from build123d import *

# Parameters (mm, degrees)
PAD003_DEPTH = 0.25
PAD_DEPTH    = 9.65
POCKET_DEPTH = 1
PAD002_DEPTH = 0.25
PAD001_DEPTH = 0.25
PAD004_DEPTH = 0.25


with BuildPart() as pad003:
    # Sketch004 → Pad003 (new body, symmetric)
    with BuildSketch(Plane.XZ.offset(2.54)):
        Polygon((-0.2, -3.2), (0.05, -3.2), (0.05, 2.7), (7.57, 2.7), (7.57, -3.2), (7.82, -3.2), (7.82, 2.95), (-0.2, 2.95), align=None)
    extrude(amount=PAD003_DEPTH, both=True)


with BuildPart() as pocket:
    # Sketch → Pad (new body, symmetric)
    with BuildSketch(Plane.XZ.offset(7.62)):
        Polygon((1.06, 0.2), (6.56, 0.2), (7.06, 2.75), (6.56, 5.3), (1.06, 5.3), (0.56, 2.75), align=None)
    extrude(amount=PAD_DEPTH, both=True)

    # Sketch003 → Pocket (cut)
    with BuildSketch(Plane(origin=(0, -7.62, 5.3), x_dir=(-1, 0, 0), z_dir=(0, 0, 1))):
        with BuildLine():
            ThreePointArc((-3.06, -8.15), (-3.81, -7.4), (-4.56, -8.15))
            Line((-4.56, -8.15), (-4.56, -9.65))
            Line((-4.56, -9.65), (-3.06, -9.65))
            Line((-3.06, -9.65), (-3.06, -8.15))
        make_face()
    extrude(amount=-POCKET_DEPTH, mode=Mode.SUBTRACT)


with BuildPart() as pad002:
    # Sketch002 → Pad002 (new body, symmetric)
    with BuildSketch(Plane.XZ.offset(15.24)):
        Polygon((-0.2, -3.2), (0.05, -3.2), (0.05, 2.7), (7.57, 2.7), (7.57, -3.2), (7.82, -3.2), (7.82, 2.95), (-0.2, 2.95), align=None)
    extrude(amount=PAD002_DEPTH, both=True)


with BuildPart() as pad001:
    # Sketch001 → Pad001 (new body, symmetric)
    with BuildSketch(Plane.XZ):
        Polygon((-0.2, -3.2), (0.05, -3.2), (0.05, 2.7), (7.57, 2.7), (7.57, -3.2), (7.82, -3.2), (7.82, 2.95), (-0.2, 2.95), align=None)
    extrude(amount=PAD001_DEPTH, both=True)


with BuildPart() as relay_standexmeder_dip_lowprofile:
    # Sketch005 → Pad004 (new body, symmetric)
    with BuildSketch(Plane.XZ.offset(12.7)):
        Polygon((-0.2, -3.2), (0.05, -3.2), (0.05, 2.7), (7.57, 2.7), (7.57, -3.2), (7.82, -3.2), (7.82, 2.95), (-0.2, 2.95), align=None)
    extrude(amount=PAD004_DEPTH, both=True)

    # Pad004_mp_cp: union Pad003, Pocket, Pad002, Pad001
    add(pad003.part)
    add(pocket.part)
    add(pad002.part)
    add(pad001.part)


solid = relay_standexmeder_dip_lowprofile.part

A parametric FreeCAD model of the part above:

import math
import FreeCAD as App
import Part
import Sketcher

doc = App.newDocument("Part")
body = doc.addObject("PartDesign::Body", "Body")

sketch1 = body.newObject("Sketcher::SketchObject", "Sketch")
sketch1.AttachmentSupport = (doc.getObject("XZ_Plane"), [""])
sketch1.MapMode = "FlatFace"
sketch1.AttachmentOffset = App.Placement(App.Vector(0, 0, 2.54), App.Rotation())
sketch1.addGeometry([
    Part.LineSegment(App.Vector(-0.2, -3.2, 0), App.Vector(0.05, -3.2, 0)),
    Part.LineSegment(App.Vector(0.05, -3.2, 0), App.Vector(0.05, 2.7, 0)),
    Part.LineSegment(App.Vector(0.05, 2.7, 0), App.Vector(7.57, 2.7, 0)),
    Part.LineSegment(App.Vector(7.57, 2.7, 0), App.Vector(7.57, -3.2, 0)),
    Part.LineSegment(App.Vector(7.57, -3.2, 0), App.Vector(7.82, -3.2, 0)),
    Part.LineSegment(App.Vector(7.82, -3.2, 0), App.Vector(7.82, 2.95, 0)),
    Part.LineSegment(App.Vector(7.82, 2.95, 0), App.Vector(-0.2, 2.95, 0)),
    Part.LineSegment(App.Vector(-0.2, 2.95, 0), App.Vector(-0.2, -3.2, 0)),
], False)
sketch1.addConstraint([
    Sketcher.Constraint("Coincident", 0, 2, 1, 1),
    Sketcher.Constraint("Coincident", 1, 2, 2, 1),
    Sketcher.Constraint("Coincident", 2, 2, 3, 1),
    Sketcher.Constraint("Coincident", 3, 2, 4, 1),
    Sketcher.Constraint("Coincident", 4, 2, 5, 1),
    Sketcher.Constraint("Coincident", 5, 2, 6, 1),
    Sketcher.Constraint("Coincident", 6, 2, 7, 1),
    Sketcher.Constraint("Coincident", 7, 2, 0, 1),
    Sketcher.Constraint("Horizontal", 0),
    Sketcher.Constraint("Vertical", 1),
    Sketcher.Constraint("Horizontal", 2),
    Sketcher.Constraint("Vertical", 3),
    Sketcher.Constraint("Horizontal", 4),
    Sketcher.Constraint("Vertical", 5),
    Sketcher.Constraint("Horizontal", 6),
    Sketcher.Constraint("Vertical", 7),
    Sketcher.Constraint("Horizontal", 0, 2, 3, 2),
    Sketcher.Constraint("Equal", 0, 4),
    Sketcher.Constraint("DistanceY", 1, 1, 1, 2, 5.9),
    Sketcher.Constraint("DistanceX", 0, 1, 0, 2, 0.25),
    Sketcher.Constraint("DistanceX", 2, 1, 2, 2, 7.52),
    Sketcher.Constraint("DistanceY", 5, 1, 5, 2, 6.15),
    Sketcher.Constraint("DistanceY", 0, 2, -1, 1, 3.2),
    Sketcher.Constraint("DistanceX", 6, 2, -1, 1, 0.2),
])
pad1 = body.newObject("PartDesign::Pad", "Pad")
pad1.Profile = sketch1
pad1.Length = 0.5
pad1.Midplane = True
body2 = doc.addObject("PartDesign::Body", "Body001")

sketch2 = body2.newObject("Sketcher::SketchObject", "Sketch001")
sketch2.AttachmentSupport = (doc.getObject("XZ_Plane001"), [""])
sketch2.MapMode = "FlatFace"
sketch2.AttachmentOffset = App.Placement(App.Vector(0, 0, 7.62), App.Rotation())
sketch2.addGeometry([
    Part.LineSegment(App.Vector(1.06, 0.2, 0), App.Vector(6.56, 0.2, 0)),
    Part.LineSegment(App.Vector(6.56, 0.2, 0), App.Vector(7.06, 2.75, 0)),
    Part.LineSegment(App.Vector(7.06, 2.75, 0), App.Vector(6.56, 5.3, 0)),
    Part.LineSegment(App.Vector(6.56, 5.3, 0), App.Vector(1.06, 5.3, 0)),
    Part.LineSegment(App.Vector(1.06, 5.3, 0), App.Vector(0.56, 2.75, 0)),
    Part.LineSegment(App.Vector(0.56, 2.75, 0), App.Vector(1.06, 0.2, 0)),
], False)
sketch2.addConstraint([
    Sketcher.Constraint("Coincident", 0, 2, 1, 1),
    Sketcher.Constraint("Coincident", 1, 2, 2, 1),
    Sketcher.Constraint("Coincident", 2, 2, 3, 1),
    Sketcher.Constraint("Coincident", 3, 2, 4, 1),
    Sketcher.Constraint("Coincident", 4, 2, 5, 1),
    Sketcher.Constraint("Coincident", 5, 2, 0, 1),
    Sketcher.Constraint("Horizontal", 0),
    Sketcher.Constraint("Horizontal", 3),
    Sketcher.Constraint("Parallel", 1, 4),
    Sketcher.Constraint("Parallel", 2, 5),
    Sketcher.Constraint("Horizontal", 1, 2, 4, 2),
    Sketcher.Constraint("Vertical", 0, 2, 2, 2),
    Sketcher.Constraint("Vertical", 3, 2, 5, 2),
    Sketcher.Constraint("DistanceX", 0, 1, 0, 2, 5.5),
    Sketcher.Constraint("DistanceX", 3, 2, 1, 2, 6.0),
    Sketcher.Constraint("DistanceY", -1, 1, 0, 2, 0.2),
    Sketcher.Constraint("DistanceY", -1, 1, 2, 2, 5.3),
    Sketcher.Constraint("DistanceX", -1, 1, 0, 2, 6.56),
])
pad2 = body2.newObject("PartDesign::Pad", "Pad001")
pad2.Profile = sketch2
pad2.Length = 19.3
pad2.Midplane = True

sketch3 = body2.newObject("Sketcher::SketchObject", "Sketch002")
sketch3.AttachmentSupport = (doc.getObject("XY_Plane001"), [""])
sketch3.MapMode = "FlatFace"
sketch3.AttachmentOffset = App.Placement(App.Vector(0, 0, 5.3), App.Rotation())
sketch3.addGeometry([
    Part.ArcOfCircle(Part.Circle(App.Vector(3.81, 0.53, 0), App.Vector(0, 0, 1), 0.75), math.radians(180), math.radians(360)),
    Part.LineSegment(App.Vector(4.56, 0.53, 0), App.Vector(4.56, 2.03, 0)),
    Part.LineSegment(App.Vector(4.56, 2.03, 0), App.Vector(3.06, 2.03, 0)),
    Part.LineSegment(App.Vector(3.06, 2.03, 0), App.Vector(3.06, 0.53, 0)),
], False)
sketch3.addConstraint([
    Sketcher.Constraint("Tangent", 0, 2, 1, 1),
    Sketcher.Constraint("Coincident", 1, 2, 2, 1),
    Sketcher.Constraint("Coincident", 2, 2, 3, 1),
    Sketcher.Constraint("Tangent", 3, 2, 0, 1),
    Sketcher.Constraint("Vertical", 1),
    Sketcher.Constraint("Horizontal", 2),
    Sketcher.Constraint("Vertical", 3),
    Sketcher.Constraint("Equal", 2, 1),
    Sketcher.Constraint("Radius", 0, 0.75),
    Sketcher.Constraint("DistanceX", -1, 1, 0, 3, 3.81),
    Sketcher.Constraint("DistanceY", -1, 1, 0, 3, 0.53),
])
pocket1 = body2.newObject("PartDesign::Pocket", "Pocket")
pocket1.Profile = sketch3
pocket1.Length = 1
body3 = doc.addObject("PartDesign::Body", "Body002")

sketch4 = body3.newObject("Sketcher::SketchObject", "Sketch003")
sketch4.AttachmentSupport = (doc.getObject("XZ_Plane002"), [""])
sketch4.MapMode = "FlatFace"
sketch4.AttachmentOffset = App.Placement(App.Vector(0, 0, 15.24), App.Rotation())
sketch4.addGeometry([
    Part.LineSegment(App.Vector(-0.2, -3.2, 0), App.Vector(0.05, -3.2, 0)),
    Part.LineSegment(App.Vector(0.05, -3.2, 0), App.Vector(0.05, 2.7, 0)),
    Part.LineSegment(App.Vector(0.05, 2.7, 0), App.Vector(7.57, 2.7, 0)),
    Part.LineSegment(App.Vector(7.57, 2.7, 0), App.Vector(7.57, -3.2, 0)),
    Part.LineSegment(App.Vector(7.57, -3.2, 0), App.Vector(7.82, -3.2, 0)),
    Part.LineSegment(App.Vector(7.82, -3.2, 0), App.Vector(7.82, 2.95, 0)),
    Part.LineSegment(App.Vector(7.82, 2.95, 0), App.Vector(-0.2, 2.95, 0)),
    Part.LineSegment(App.Vector(-0.2, 2.95, 0), App.Vector(-0.2, -3.2, 0)),
], False)
sketch4.addConstraint([
    Sketcher.Constraint("Coincident", 0, 2, 1, 1),
    Sketcher.Constraint("Coincident", 1, 2, 2, 1),
    Sketcher.Constraint("Coincident", 2, 2, 3, 1),
    Sketcher.Constraint("Coincident", 3, 2, 4, 1),
    Sketcher.Constraint("Coincident", 4, 2, 5, 1),
    Sketcher.Constraint("Coincident", 5, 2, 6, 1),
    Sketcher.Constraint("Coincident", 6, 2, 7, 1),
    Sketcher.Constraint("Coincident", 7, 2, 0, 1),
    Sketcher.Constraint("Horizontal", 0),
    Sketcher.Constraint("Vertical", 1),
    Sketcher.Constraint("Horizontal", 2),
    Sketcher.Constraint("Vertical", 3),
    Sketcher.Constraint("Horizontal", 4),
    Sketcher.Constraint("Vertical", 5),
    Sketcher.Constraint("Horizontal", 6),
    Sketcher.Constraint("Vertical", 7),
    Sketcher.Constraint("Horizontal", 0, 2, 3, 2),
    Sketcher.Constraint("Equal", 0, 4),
    Sketcher.Constraint("DistanceY", 1, 1, 1, 2, 5.9),
    Sketcher.Constraint("DistanceX", 0, 1, 0, 2, 0.25),
    Sketcher.Constraint("DistanceX", 2, 1, 2, 2, 7.52),
    Sketcher.Constraint("DistanceY", 5, 1, 5, 2, 6.15),
    Sketcher.Constraint("DistanceY", 0, 2, -1, 1, 3.2),
    Sketcher.Constraint("DistanceX", 6, 2, -1, 1, 0.2),
])
pad3 = body3.newObject("PartDesign::Pad", "Pad002")
pad3.Profile = sketch4
pad3.Length = 0.5
pad3.Midplane = True
body4 = doc.addObject("PartDesign::Body", "Body003")

sketch5 = body4.newObject("Sketcher::SketchObject", "Sketch004")
sketch5.AttachmentSupport = (doc.getObject("XZ_Plane003"), [""])
sketch5.MapMode = "FlatFace"
sketch5.addGeometry([
    Part.LineSegment(App.Vector(-0.2, -3.2, 0), App.Vector(0.05, -3.2, 0)),
    Part.LineSegment(App.Vector(0.05, -3.2, 0), App.Vector(0.05, 2.7, 0)),
    Part.LineSegment(App.Vector(0.05, 2.7, 0), App.Vector(7.57, 2.7, 0)),
    Part.LineSegment(App.Vector(7.57, 2.7, 0), App.Vector(7.57, -3.2, 0)),
    Part.LineSegment(App.Vector(7.57, -3.2, 0), App.Vector(7.82, -3.2, 0)),
    Part.LineSegment(App.Vector(7.82, -3.2, 0), App.Vector(7.82, 2.95, 0)),
    Part.LineSegment(App.Vector(7.82, 2.95, 0), App.Vector(-0.2, 2.95, 0)),
    Part.LineSegment(App.Vector(-0.2, 2.95, 0), App.Vector(-0.2, -3.2, 0)),
], False)
sketch5.addConstraint([
    Sketcher.Constraint("Coincident", 0, 2, 1, 1),
    Sketcher.Constraint("Coincident", 1, 2, 2, 1),
    Sketcher.Constraint("Coincident", 2, 2, 3, 1),
    Sketcher.Constraint("Coincident", 3, 2, 4, 1),
    Sketcher.Constraint("Coincident", 4, 2, 5, 1),
    Sketcher.Constraint("Coincident", 5, 2, 6, 1),
    Sketcher.Constraint("Coincident", 6, 2, 7, 1),
    Sketcher.Constraint("Coincident", 7, 2, 0, 1),
    Sketcher.Constraint("Horizontal", 0),
    Sketcher.Constraint("Vertical", 1),
    Sketcher.Constraint("Horizontal", 2),
    Sketcher.Constraint("Vertical", 3),
    Sketcher.Constraint("Horizontal", 4),
    Sketcher.Constraint("Vertical", 5),
    Sketcher.Constraint("Horizontal", 6),
    Sketcher.Constraint("Vertical", 7),
    Sketcher.Constraint("Horizontal", 0, 2, 3, 2),
    Sketcher.Constraint("Equal", 0, 4),
    Sketcher.Constraint("DistanceY", 1, 1, 1, 2, 5.9),
    Sketcher.Constraint("DistanceX", 0, 1, 0, 2, 0.25),
    Sketcher.Constraint("DistanceX", 2, 1, 2, 2, 7.52),
    Sketcher.Constraint("DistanceY", 5, 1, 5, 2, 6.15),
    Sketcher.Constraint("DistanceY", 0, 2, -1, 1, 3.2),
    Sketcher.Constraint("DistanceX", 6, 2, -1, 1, 0.2),
])
pad4 = body4.newObject("PartDesign::Pad", "Pad003")
pad4.Profile = sketch5
pad4.Length = 0.5
pad4.Midplane = True
body5 = doc.addObject("PartDesign::Body", "Body004")
body5.AllowCompound = True

sketch6 = body5.newObject("Sketcher::SketchObject", "Sketch005")
sketch6.AttachmentSupport = (doc.getObject("XZ_Plane004"), [""])
sketch6.MapMode = "FlatFace"
sketch6.AttachmentOffset = App.Placement(App.Vector(0, 0, 12.7), App.Rotation())
sketch6.addGeometry([
    Part.LineSegment(App.Vector(-0.2, -3.2, 0), App.Vector(0.05, -3.2, 0)),
    Part.LineSegment(App.Vector(0.05, -3.2, 0), App.Vector(0.05, 2.7, 0)),
    Part.LineSegment(App.Vector(0.05, 2.7, 0), App.Vector(7.57, 2.7, 0)),
    Part.LineSegment(App.Vector(7.57, 2.7, 0), App.Vector(7.57, -3.2, 0)),
    Part.LineSegment(App.Vector(7.57, -3.2, 0), App.Vector(7.82, -3.2, 0)),
    Part.LineSegment(App.Vector(7.82, -3.2, 0), App.Vector(7.82, 2.95, 0)),
    Part.LineSegment(App.Vector(7.82, 2.95, 0), App.Vector(-0.2, 2.95, 0)),
    Part.LineSegment(App.Vector(-0.2, 2.95, 0), App.Vector(-0.2, -3.2, 0)),
], False)
sketch6.addConstraint([
    Sketcher.Constraint("Coincident", 0, 2, 1, 1),
    Sketcher.Constraint("Coincident", 1, 2, 2, 1),
    Sketcher.Constraint("Coincident", 2, 2, 3, 1),
    Sketcher.Constraint("Coincident", 3, 2, 4, 1),
    Sketcher.Constraint("Coincident", 4, 2, 5, 1),
    Sketcher.Constraint("Coincident", 5, 2, 6, 1),
    Sketcher.Constraint("Coincident", 6, 2, 7, 1),
    Sketcher.Constraint("Coincident", 7, 2, 0, 1),
    Sketcher.Constraint("Horizontal", 0),
    Sketcher.Constraint("Vertical", 1),
    Sketcher.Constraint("Horizontal", 2),
    Sketcher.Constraint("Vertical", 3),
    Sketcher.Constraint("Horizontal", 4),
    Sketcher.Constraint("Vertical", 5),
    Sketcher.Constraint("Horizontal", 6),
    Sketcher.Constraint("Vertical", 7),
    Sketcher.Constraint("Horizontal", 0, 2, 3, 2),
    Sketcher.Constraint("Equal", 0, 4),
    Sketcher.Constraint("DistanceY", 1, 1, 1, 2, 5.9),
    Sketcher.Constraint("DistanceX", 0, 1, 0, 2, 0.25),
    Sketcher.Constraint("DistanceX", 2, 1, 2, 2, 7.52),
    Sketcher.Constraint("DistanceY", 5, 1, 5, 2, 6.15),
    Sketcher.Constraint("DistanceY", 0, 2, -1, 1, 3.2),
    Sketcher.Constraint("DistanceX", 6, 2, -1, 1, 0.2),
])
pad5 = body5.newObject("PartDesign::Pad", "Pad004")
pad5.Profile = sketch6
pad5.Length = 0.5
pad5.Midplane = True
doc.recompute()

boolean = body5.newObject("PartDesign::Boolean", "Boolean")
boolean.Type = "Fuse"
boolean.addObjects([body])
doc.recompute()

boolean2 = body5.newObject("PartDesign::Boolean", "Boolean001")
boolean2.Type = "Fuse"
boolean2.addObjects([body2])
doc.recompute()

boolean3 = body5.newObject("PartDesign::Boolean", "Boolean002")
boolean3.Type = "Fuse"
boolean3.addObjects([body3])
doc.recompute()

boolean4 = body5.newObject("PartDesign::Boolean", "Boolean003")
boolean4.Type = "Fuse"
boolean4.addObjects([body4])

doc.recompute()
